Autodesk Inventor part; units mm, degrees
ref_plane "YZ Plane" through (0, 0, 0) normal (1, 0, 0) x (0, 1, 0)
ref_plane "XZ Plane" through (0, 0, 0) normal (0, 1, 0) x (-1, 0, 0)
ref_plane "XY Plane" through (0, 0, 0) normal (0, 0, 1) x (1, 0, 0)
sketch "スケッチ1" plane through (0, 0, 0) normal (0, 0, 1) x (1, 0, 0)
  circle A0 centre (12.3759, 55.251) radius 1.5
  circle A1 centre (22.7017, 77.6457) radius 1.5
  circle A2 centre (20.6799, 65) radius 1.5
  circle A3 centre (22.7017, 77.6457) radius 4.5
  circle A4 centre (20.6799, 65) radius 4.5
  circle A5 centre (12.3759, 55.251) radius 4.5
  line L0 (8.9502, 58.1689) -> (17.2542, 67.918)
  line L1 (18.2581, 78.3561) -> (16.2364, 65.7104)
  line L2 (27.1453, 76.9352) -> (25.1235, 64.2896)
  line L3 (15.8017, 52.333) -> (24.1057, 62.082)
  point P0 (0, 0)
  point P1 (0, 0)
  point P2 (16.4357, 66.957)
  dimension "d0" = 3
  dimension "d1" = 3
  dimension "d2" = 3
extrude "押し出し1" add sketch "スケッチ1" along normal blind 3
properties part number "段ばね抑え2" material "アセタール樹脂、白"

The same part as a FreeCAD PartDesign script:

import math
import FreeCAD as App
import Part
import Sketcher
from FreeCAD import Vector

doc = App.newDocument("Part")
body = doc.addObject("PartDesign::Body", "Body")

# Sketch on XY plane
sketch1 = body.newObject("Sketcher::SketchObject", "Sketch")
sketch1.AttachmentSupport = (doc.getObject("XY_Plane"), [""])
sketch1.MapMode = "FlatFace"
sketch1.addGeometry([
    Part.ArcOfCircle(Part.Circle(Vector(22.7, 77.6, 0), Vector(0, 0, 1), 4.5), math.radians(-9), math.radians(171)),  # 0
    Part.LineSegment(Vector(18.3, 78.4, 0), Vector(16.4, 67, 0)),  # 1
    Part.LineSegment(Vector(16.4, 67, 0), Vector(9, 58.2, 0)),  # 2
    Part.ArcOfCircle(Part.Circle(Vector(12.4, 55.3, 0), Vector(0, 0, 1), 4.5), math.radians(140), math.radians(320)),  # 3
    Part.LineSegment(Vector(15.8, 52.3, 0), Vector(24.1, 62.1, 0)),  # 4
    Part.ArcOfCircle(Part.Circle(Vector(20.7, 65, 0), Vector(0, 0, 1), 4.5), math.radians(-40), math.radians(-9)),  # 5
    Part.LineSegment(Vector(25.1, 64.3, 0), Vector(27.1, 76.9, 0)),  # 6
    Part.Circle(Vector(22.7, 77.6, 0), Vector(0, 0, 1), 1.5),  # 7
    Part.Circle(Vector(20.7, 65, 0), Vector(0, 0, 1), 1.5),  # 8
    Part.Circle(Vector(12.4, 55.3, 0), Vector(0, 0, 1), 1.5),  # 9
], False)
sketch1.addConstraint([
    Sketcher.Constraint("Tangent", 0, 2, 1, 1),
    Sketcher.Constraint("Coincident", 1, 2, 2, 1),
    Sketcher.Constraint("Tangent", 2, 2, 3, 1),
    Sketcher.Constraint("Tangent", 3, 2, 4, 1),
    Sketcher.Constraint("Tangent", 4, 2, 5, 1),
    Sketcher.Constraint("Tangent", 5, 2, 6, 1),
    Sketcher.Constraint("Tangent", 6, 2, 0, 1),
    Sketcher.Constraint("Coincident", 7, 3, 0, 3),
    Sketcher.Constraint("Coincident", 8, 3, 5, 3),
    Sketcher.Constraint("Coincident", 9, 3, 3, 3),
    Sketcher.Constraint("Equal", 0, 3),
    Sketcher.Constraint("Equal", 3, 5),
    Sketcher.Constraint("Equal", 7, 8),
    Sketcher.Constraint("Equal", 8, 9),
    Sketcher.Constraint("Parallel", 2, 4),
    Sketcher.Constraint("Parallel", 1, 6),
    Sketcher.Constraint("Equal", 4, 6),
    Sketcher.Constraint("Diameter", 7, 3.0),
    Sketcher.Constraint("Radius", 0, 4.5),
    Sketcher.Constraint("DistanceY", -1, 1, 5, 3, 65.0),
    Sketcher.Constraint("DistanceX", -1, 1, 5, 3, 20.68),
    Sketcher.Constraint("DistanceX", 1, 2, 4, 2, 7.67),
    Sketcher.Constraint("Distance", 2, 11.544),
    Sketcher.Constraint("DistanceX", -1, 1, 3, 3, 12.376),
])
pad1 = body.newObject("PartDesign::Pad", "Pad")
pad1.Profile = sketch1
pad1.Length = 3

doc.recompute()
